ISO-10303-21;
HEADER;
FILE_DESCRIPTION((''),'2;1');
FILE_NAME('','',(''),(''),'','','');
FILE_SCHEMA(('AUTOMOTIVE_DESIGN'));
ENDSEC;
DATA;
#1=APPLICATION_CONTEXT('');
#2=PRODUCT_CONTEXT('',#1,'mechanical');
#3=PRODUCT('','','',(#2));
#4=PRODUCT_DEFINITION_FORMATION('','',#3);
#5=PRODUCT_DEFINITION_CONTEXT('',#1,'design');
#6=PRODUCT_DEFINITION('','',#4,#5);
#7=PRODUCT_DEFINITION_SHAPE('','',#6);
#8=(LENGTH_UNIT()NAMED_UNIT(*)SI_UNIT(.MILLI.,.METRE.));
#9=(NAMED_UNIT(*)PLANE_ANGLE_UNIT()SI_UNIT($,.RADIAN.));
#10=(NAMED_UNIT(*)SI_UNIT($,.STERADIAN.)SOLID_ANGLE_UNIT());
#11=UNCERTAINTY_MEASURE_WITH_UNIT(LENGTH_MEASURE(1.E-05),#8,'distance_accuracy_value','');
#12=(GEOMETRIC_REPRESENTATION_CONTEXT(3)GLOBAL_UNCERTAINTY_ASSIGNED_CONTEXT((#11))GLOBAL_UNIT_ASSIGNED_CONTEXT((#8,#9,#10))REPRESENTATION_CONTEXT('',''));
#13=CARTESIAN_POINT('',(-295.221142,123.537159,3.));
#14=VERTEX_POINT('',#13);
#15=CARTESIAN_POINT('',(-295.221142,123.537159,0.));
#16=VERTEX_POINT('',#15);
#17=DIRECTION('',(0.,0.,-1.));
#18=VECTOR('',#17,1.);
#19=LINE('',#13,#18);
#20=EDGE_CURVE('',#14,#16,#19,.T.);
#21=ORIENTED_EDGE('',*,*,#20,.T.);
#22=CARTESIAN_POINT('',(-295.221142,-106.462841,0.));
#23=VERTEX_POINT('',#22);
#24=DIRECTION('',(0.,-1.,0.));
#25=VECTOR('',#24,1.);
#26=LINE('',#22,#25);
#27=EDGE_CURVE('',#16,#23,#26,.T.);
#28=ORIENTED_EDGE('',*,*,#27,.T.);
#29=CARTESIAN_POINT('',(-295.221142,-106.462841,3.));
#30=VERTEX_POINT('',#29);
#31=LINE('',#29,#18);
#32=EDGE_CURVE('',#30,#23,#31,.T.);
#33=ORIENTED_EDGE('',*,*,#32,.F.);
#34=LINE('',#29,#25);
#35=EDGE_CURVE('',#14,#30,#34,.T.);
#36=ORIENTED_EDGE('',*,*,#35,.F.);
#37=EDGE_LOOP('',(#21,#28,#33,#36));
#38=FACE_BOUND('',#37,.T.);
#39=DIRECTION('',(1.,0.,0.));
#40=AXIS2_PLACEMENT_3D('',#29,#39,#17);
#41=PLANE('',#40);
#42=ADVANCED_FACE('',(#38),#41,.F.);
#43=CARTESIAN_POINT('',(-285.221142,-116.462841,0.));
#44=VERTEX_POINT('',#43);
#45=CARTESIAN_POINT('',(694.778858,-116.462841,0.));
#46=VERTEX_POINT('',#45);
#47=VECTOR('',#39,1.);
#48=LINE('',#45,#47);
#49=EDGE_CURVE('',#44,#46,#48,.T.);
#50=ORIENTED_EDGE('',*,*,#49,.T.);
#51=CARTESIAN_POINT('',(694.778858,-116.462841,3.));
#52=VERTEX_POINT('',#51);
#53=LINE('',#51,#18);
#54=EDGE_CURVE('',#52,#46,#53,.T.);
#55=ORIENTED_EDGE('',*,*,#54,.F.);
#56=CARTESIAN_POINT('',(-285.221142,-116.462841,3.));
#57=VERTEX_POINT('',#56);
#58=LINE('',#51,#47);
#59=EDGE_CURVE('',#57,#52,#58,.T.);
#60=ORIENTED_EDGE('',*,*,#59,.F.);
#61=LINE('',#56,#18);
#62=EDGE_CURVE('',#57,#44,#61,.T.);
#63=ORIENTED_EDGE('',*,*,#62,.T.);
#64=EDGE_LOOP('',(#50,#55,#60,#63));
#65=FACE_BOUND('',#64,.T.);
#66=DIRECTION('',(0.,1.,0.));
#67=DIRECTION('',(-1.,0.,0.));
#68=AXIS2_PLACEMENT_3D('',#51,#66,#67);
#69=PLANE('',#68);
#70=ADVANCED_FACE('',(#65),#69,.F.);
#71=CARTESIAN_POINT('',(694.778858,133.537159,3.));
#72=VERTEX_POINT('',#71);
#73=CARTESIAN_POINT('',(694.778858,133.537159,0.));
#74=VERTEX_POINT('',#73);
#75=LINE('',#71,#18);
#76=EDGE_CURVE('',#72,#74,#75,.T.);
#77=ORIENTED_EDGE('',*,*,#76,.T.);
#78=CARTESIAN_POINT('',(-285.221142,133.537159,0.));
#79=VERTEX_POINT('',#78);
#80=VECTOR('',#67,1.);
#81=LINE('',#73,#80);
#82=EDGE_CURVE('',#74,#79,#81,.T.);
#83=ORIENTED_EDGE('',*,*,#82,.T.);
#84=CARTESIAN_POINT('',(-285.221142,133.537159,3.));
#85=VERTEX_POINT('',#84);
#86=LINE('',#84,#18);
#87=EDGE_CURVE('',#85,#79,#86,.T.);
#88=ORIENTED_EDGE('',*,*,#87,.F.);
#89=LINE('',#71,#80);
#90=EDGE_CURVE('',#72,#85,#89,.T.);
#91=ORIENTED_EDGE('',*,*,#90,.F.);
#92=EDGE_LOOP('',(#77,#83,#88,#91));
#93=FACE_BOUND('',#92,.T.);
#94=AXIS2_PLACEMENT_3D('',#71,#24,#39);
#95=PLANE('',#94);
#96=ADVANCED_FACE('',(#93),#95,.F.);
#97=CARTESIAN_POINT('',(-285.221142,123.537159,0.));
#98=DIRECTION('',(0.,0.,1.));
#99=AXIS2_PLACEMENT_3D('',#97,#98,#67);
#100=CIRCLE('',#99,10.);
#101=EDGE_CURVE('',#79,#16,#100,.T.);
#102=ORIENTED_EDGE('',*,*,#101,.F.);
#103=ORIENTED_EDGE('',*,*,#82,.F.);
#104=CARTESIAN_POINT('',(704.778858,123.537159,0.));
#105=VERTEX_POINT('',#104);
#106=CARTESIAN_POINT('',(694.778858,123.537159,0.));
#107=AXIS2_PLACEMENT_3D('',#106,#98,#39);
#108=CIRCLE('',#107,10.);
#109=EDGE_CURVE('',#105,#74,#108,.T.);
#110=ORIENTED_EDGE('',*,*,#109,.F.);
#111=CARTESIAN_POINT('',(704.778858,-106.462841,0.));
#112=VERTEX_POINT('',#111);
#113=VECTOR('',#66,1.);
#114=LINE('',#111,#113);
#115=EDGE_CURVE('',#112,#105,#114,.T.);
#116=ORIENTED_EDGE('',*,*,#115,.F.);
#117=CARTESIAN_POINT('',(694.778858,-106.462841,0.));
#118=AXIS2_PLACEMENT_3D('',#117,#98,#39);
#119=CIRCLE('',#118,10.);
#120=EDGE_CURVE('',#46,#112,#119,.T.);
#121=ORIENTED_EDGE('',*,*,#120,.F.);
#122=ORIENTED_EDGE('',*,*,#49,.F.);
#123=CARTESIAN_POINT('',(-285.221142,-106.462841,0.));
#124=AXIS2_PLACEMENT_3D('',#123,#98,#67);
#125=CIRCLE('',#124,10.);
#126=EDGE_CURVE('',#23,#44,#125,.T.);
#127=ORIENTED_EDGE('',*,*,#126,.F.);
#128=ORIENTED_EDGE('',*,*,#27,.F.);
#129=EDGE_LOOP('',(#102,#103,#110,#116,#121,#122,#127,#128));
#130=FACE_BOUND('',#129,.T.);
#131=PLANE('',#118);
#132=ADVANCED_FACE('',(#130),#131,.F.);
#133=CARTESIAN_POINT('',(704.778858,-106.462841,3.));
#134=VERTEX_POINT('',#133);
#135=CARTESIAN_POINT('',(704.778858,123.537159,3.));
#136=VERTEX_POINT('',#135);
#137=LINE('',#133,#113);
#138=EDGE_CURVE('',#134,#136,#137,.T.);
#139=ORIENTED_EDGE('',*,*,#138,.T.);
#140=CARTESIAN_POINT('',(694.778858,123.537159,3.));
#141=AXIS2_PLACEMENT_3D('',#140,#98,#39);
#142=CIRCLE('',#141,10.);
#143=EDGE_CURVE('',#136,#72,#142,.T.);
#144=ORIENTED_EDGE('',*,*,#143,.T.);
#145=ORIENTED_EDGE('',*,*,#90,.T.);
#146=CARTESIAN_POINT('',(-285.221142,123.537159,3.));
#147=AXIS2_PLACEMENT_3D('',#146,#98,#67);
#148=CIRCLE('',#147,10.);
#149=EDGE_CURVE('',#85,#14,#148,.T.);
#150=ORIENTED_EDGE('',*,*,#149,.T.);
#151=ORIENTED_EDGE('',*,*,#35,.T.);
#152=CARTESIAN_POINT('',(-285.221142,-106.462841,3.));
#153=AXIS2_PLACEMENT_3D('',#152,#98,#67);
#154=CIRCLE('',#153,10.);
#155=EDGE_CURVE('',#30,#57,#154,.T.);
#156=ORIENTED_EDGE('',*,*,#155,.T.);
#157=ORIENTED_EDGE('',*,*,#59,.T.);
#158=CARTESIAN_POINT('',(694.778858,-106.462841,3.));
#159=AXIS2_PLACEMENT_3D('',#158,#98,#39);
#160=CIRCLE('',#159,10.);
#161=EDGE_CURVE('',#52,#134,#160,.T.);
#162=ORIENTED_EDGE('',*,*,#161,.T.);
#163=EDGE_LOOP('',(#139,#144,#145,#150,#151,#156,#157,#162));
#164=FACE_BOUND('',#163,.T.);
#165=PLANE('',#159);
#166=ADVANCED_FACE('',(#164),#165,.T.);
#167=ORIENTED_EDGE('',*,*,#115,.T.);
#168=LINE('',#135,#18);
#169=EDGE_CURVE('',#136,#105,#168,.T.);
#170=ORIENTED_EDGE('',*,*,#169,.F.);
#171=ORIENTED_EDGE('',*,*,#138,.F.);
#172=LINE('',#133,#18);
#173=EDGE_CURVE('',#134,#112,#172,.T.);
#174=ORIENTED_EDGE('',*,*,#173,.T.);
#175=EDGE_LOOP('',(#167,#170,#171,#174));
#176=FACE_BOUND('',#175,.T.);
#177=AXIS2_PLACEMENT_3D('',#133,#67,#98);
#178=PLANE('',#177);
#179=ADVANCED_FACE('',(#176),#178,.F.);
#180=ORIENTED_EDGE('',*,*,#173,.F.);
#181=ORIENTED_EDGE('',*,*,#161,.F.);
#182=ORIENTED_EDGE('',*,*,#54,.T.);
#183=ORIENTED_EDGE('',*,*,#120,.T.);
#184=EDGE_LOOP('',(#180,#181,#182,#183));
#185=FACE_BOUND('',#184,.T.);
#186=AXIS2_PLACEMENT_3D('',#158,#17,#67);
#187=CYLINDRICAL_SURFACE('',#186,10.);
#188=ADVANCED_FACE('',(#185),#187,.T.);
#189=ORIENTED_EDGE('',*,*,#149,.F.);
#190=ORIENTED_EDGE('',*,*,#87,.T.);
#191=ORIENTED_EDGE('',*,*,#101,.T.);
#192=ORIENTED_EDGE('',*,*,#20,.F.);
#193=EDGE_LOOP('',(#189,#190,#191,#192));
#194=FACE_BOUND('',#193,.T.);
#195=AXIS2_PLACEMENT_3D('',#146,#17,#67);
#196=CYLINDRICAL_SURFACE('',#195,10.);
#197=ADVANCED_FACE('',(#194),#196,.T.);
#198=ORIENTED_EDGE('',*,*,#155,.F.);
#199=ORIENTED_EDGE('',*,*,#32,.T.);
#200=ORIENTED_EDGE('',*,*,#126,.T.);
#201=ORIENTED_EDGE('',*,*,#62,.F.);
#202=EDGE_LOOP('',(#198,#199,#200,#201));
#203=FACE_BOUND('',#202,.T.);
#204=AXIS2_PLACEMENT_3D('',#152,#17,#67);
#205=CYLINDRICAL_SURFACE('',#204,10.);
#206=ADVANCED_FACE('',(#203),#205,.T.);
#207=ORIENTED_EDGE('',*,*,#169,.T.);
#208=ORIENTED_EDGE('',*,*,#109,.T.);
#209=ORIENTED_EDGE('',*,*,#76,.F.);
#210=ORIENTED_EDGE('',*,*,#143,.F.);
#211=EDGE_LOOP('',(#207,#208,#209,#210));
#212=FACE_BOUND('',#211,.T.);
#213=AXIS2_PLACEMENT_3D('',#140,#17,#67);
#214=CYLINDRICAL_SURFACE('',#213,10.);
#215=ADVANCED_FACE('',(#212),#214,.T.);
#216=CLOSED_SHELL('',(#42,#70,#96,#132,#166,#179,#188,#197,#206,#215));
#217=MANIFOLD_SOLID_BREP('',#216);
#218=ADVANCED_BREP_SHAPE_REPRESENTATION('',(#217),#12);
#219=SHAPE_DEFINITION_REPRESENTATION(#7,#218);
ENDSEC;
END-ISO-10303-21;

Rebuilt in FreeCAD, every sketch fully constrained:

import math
import FreeCAD as App
import Part
import Sketcher

V = App.Vector

doc = App.newDocument("Part")
body = doc.addObject("PartDesign::Body", "Body")

sketch1 = body.newObject("Sketcher::SketchObject", "Sketch")
sketch1.AttachmentSupport = (doc.getObject("XY_Plane"), [""])
sketch1.MapMode = "FlatFace"
sketch1.addGeometry([
    Part.LineSegment(V(-285.221142, -116.462841, 0), V(694.778858, -116.462841, 0)),
    Part.ArcOfCircle(Part.Circle(V(694.778858, -106.462841, 0), V(0, 0, 1), 10), math.radians(-90), math.radians(0)),
    Part.LineSegment(V(704.778858, -106.462841, 0), V(704.778858, 123.537159, 0)),
    Part.ArcOfCircle(Part.Circle(V(694.778858, 123.537159, 0), V(0, 0, 1), 10), math.radians(0), math.radians(90)),
    Part.LineSegment(V(694.778858, 133.537159, 0), V(-285.221142, 133.537159, 0)),
    Part.ArcOfCircle(Part.Circle(V(-285.221142, 123.537159, 0), V(0, 0, 1), 10), math.radians(90), math.radians(180)),
    Part.LineSegment(V(-295.221142, 123.537159, 0), V(-295.221142, -106.462841, 0)),
    Part.ArcOfCircle(Part.Circle(V(-285.221142, -106.462841, 0), V(0, 0, 1), 10), math.radians(180), math.radians(270)),
], False)
sketch1.addConstraint([
    Sketcher.Constraint("Tangent", 0, 2, 1, 1),
    Sketcher.Constraint("Tangent", 1, 2, 2, 1),
    Sketcher.Constraint("Tangent", 2, 2, 3, 1),
    Sketcher.Constraint("Tangent", 3, 2, 4, 1),
    Sketcher.Constraint("Tangent", 4, 2, 5, 1),
    Sketcher.Constraint("Tangent", 5, 2, 6, 1),
    Sketcher.Constraint("Tangent", 6, 2, 7, 1),
    Sketcher.Constraint("Tangent", 7, 2, 0, 1),
    Sketcher.Constraint("Horizontal", 0),
    Sketcher.Constraint("Vertical", 2),
    Sketcher.Constraint("Horizontal", 4),
    Sketcher.Constraint("Vertical", 6),
    Sketcher.Constraint("Equal", 1, 3),
    Sketcher.Constraint("Equal", 3, 5),
    Sketcher.Constraint("Equal", 5, 7),
    Sketcher.Constraint("Radius", 1, 10.0),
    Sketcher.Constraint("DistanceX", 0, 1, 0, 2, 980.0),
    Sketcher.Constraint("DistanceY", 2, 1, 2, 2, 230.0),
    Sketcher.Constraint("DistanceX", -1, 1, 1, 3, 694.778858),
    Sketcher.Constraint("DistanceY", 1, 3, -1, 1, 106.462841),
])
pad1 = body.newObject("PartDesign::Pad", "Pad")
pad1.Profile = sketch1
pad1.Length = 3

doc.recompute()
